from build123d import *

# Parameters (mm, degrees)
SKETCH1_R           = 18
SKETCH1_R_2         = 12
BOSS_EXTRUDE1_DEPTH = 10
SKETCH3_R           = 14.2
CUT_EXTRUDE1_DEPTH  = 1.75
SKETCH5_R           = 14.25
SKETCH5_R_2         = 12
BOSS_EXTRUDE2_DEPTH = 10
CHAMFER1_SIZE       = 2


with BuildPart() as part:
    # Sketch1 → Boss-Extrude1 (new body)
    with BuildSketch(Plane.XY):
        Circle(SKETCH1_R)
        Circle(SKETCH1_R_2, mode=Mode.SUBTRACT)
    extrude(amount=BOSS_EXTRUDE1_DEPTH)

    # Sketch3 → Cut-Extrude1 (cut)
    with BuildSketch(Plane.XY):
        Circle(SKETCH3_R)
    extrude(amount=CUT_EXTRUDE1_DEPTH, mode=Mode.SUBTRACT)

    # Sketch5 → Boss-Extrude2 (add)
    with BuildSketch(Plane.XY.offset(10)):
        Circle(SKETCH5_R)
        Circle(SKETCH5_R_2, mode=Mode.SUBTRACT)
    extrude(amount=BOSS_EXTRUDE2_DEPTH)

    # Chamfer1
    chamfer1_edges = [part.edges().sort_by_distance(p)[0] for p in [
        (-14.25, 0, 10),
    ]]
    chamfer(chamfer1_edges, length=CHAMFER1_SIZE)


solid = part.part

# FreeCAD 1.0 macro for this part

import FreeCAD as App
import Part
import Sketcher
Q = App.Units.Quantity


def edges_at(feature, points):
    """Names of the edges that pass closest to the given points."""
    edges = feature.Shape.Edges
    near = lambda p: min(range(len(edges)), key=lambda i: edges[i].distToShape(Part.Vertex(*p))[0])
    return sorted({f"Edge{near(p) + 1}" for p in points})

doc = App.newDocument("Part")
body = doc.addObject("PartDesign::Body", "Body")

# Sketch on XY plane
sketch1 = doc.addObject("Sketcher::SketchObject", "Sketch")
body.addObject(sketch1)
sketch1.AttachmentSupport = (doc.XY_Plane, [""])
sketch1.MapMode = "FlatFace"
sketch1.addGeometry(Part.Circle(App.Vector(0, 0, 0), App.Vector(0, 0, 1), 18), False)
sketch1.addGeometry(Part.Circle(App.Vector(0, 0, 0), App.Vector(0, 0, 1), 12), False)
sketch1.addConstraint(Sketcher.Constraint("Coincident", 0, 3, -1, 1))
sketch1.addConstraint(Sketcher.Constraint("Coincident", 1, 3, -1, 1))
sketch1.addConstraint(Sketcher.Constraint("Diameter", 0, Q("36 mm")))
sketch1.addConstraint(Sketcher.Constraint("Diameter", 1, Q("24 mm")))
pad1 = doc.addObject("PartDesign::Pad", "Pad")
body.addObject(pad1)
pad1.Profile = sketch1
pad1.Length = 10

# Sketch on XY plane
sketch2 = doc.addObject("Sketcher::SketchObject", "Sketch001")
body.addObject(sketch2)
sketch2.AttachmentSupport = (doc.XY_Plane, [""])
sketch2.MapMode = "FlatFace"
sketch2.addGeometry(Part.Circle(App.Vector(0, 0, 0), App.Vector(0, 0, 1), 14), False)
sketch2.addConstraint(Sketcher.Constraint("Coincident", 0, 3, -1, 1))
sketch2.addConstraint(Sketcher.Constraint("Diameter", 0, Q("28.4 mm")))
pocket1 = doc.addObject("PartDesign::Pocket", "Pocket")
body.addObject(pocket1)
pocket1.Profile = sketch2
pocket1.Length = 1.75
pocket1.Reversed = True

# Sketch on XY plane
sketch3 = doc.addObject("Sketcher::SketchObject", "Sketch002")
body.addObject(sketch3)
sketch3.AttachmentSupport = (doc.XY_Plane, [""])
sketch3.MapMode = "FlatFace"
sketch3.AttachmentOffset = App.Placement(App.Vector(0, 0, 10), App.Rotation())
sketch3.addGeometry(Part.Circle(App.Vector(0, 0, 0), App.Vector(0, 0, 1), 14), False)
sketch3.addGeometry(Part.Circle(App.Vector(0, 0, 0), App.Vector(0, 0, 1), 12), False)
sketch3.addConstraint(Sketcher.Constraint("Coincident", 0, 3, -1, 1))
sketch3.addConstraint(Sketcher.Constraint("Coincident", 1, 3, -1, 1))
sketch3.addConstraint(Sketcher.Constraint("Diameter", 1, Q("24 mm")))
sketch3.addConstraint(Sketcher.Constraint("Diameter", 0, Q("28.5 mm")))
pad2 = doc.addObject("PartDesign::Pad", "Pad001")
body.addObject(pad2)
pad2.Profile = sketch3
pad2.Length = 10
doc.recompute()

chamfer = doc.addObject("PartDesign::Chamfer", "Chamfer")
body.addObject(chamfer)
chamfer.Base = (pad2, edges_at(pad2, [(-14.25, 0, 10)]))
chamfer.Size = 2

doc.recompute()
